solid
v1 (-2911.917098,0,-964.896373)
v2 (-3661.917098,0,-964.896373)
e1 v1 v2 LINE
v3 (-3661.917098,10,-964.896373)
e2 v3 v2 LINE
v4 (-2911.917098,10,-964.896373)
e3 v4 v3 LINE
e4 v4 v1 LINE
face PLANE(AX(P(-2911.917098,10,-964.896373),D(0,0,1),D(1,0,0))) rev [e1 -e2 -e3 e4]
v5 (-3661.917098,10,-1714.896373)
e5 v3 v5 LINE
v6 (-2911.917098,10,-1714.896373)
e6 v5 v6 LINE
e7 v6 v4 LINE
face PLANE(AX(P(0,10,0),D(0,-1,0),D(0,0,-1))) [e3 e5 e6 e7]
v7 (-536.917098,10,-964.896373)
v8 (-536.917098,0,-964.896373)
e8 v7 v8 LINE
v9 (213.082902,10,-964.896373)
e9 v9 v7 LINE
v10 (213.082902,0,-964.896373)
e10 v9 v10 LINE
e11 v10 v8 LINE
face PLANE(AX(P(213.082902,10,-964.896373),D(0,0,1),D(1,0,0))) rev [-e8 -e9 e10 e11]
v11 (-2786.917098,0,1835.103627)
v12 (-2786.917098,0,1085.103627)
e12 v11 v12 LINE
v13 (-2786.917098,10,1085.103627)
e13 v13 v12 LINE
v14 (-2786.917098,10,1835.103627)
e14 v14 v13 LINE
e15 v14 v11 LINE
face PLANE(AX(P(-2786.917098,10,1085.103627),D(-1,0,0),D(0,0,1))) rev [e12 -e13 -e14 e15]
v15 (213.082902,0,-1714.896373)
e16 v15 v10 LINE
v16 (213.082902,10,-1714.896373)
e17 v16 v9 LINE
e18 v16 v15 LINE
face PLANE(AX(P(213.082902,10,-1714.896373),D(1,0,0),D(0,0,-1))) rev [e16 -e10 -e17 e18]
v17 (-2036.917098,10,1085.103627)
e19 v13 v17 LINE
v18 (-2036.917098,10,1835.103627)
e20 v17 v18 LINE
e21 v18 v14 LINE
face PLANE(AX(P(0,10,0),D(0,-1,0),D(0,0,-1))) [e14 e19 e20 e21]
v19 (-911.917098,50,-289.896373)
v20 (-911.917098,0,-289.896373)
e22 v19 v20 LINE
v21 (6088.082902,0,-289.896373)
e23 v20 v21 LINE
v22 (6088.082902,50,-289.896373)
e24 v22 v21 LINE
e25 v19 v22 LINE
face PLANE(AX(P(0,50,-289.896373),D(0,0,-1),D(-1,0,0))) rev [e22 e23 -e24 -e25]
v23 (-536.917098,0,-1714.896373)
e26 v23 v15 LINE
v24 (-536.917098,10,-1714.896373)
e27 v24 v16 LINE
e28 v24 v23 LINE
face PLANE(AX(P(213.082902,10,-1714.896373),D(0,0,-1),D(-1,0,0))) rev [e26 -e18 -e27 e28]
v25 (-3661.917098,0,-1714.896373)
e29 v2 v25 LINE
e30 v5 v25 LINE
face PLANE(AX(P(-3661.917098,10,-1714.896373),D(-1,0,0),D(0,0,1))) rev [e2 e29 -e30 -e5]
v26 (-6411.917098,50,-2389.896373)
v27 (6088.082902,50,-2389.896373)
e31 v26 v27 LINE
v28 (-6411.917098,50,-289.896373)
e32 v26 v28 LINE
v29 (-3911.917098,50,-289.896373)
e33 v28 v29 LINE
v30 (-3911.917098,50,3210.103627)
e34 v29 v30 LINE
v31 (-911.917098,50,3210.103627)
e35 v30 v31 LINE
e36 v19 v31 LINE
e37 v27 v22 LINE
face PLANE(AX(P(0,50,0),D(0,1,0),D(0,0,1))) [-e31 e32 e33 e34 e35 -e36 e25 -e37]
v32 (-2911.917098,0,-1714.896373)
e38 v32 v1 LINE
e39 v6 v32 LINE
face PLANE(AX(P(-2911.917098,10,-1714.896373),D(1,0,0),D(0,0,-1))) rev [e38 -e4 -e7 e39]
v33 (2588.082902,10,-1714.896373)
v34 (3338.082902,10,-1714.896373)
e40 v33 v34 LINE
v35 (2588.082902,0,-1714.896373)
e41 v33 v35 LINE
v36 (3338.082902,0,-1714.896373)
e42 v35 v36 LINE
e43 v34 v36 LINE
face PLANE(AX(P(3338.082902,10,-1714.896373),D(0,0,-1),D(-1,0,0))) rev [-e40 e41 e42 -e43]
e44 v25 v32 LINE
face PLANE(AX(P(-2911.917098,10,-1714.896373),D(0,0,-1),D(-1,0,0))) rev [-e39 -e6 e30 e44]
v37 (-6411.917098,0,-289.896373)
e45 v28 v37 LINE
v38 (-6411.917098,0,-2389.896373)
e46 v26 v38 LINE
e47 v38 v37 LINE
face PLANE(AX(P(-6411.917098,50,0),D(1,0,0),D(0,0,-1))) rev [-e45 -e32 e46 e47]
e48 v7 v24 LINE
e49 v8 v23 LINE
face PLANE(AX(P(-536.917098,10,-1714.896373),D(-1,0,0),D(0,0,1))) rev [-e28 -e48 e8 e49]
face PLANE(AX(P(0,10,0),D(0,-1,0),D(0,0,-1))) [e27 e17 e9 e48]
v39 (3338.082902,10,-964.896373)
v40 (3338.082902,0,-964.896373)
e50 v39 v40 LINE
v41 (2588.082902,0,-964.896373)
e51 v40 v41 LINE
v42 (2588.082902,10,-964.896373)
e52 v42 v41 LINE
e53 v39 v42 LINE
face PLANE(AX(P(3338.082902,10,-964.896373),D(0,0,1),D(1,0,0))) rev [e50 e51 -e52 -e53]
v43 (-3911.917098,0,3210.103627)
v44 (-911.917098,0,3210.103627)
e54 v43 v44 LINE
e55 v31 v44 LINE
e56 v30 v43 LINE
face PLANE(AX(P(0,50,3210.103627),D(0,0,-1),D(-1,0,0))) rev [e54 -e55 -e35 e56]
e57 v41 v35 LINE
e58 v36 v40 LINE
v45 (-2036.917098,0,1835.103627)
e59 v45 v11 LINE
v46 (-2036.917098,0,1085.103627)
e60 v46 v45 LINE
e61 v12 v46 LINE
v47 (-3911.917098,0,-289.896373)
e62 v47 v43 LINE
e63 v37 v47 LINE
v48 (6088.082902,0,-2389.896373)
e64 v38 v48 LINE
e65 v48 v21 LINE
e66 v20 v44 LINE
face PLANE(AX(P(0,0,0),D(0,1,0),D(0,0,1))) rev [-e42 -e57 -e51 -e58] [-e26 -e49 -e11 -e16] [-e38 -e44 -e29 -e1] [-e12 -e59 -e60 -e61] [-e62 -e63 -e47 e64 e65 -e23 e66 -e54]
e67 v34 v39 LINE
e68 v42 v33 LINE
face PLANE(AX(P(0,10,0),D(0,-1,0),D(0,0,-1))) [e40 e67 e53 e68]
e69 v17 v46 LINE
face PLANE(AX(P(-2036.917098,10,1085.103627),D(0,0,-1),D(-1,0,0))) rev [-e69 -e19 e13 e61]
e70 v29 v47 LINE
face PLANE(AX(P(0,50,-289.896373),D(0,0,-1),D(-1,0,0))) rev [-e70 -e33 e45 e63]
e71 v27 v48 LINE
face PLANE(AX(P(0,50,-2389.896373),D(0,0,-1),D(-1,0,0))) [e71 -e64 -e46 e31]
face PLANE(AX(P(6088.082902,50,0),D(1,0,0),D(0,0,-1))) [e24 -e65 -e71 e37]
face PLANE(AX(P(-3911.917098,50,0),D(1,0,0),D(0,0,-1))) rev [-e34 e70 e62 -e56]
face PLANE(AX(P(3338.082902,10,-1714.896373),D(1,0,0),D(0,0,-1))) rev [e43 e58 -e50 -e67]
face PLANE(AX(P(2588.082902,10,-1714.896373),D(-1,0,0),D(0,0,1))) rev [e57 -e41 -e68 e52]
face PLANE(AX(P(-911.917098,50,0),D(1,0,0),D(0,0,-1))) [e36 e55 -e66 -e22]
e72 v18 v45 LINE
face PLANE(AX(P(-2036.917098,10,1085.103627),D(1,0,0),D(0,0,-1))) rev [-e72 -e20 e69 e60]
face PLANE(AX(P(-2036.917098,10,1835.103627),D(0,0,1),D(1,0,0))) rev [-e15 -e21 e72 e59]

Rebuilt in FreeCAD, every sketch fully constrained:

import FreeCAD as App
import Part
import Sketcher


def add_polygon(sketch, points):
    """Adds a closed chain of lines whose ends are joined by coincident constraints."""
    first, n = sketch.GeometryCount, len(points)
    for a, b in zip(points, points[1:] + points[:1]):
        sketch.addGeometry(Part.LineSegment(App.Vector(*a, 0), App.Vector(*b, 0)), False)
    for i in range(n):
        sketch.addConstraint(Sketcher.Constraint("Coincident", first + i, 2, first + (i + 1) % n, 1))

doc = App.newDocument("Part")
body = doc.addObject("PartDesign::Body", "Body")

sketch1 = body.newObject("Sketcher::SketchObject", "Sketch")
sketch1.AttachmentSupport = (doc.getObject("XZ_Plane"), [""])
sketch1.MapMode = "FlatFace"
add_polygon(sketch1, [(-6412, -2390), (-6412, -290), (-3912, -290), (-3912, 3210), (-912, 3210), (-912, -290), (6088, -290), (6088, -2390)])
sketch1.addConstraint(Sketcher.Constraint("Vertical", 0))
sketch1.addConstraint(Sketcher.Constraint("Horizontal", 1))
sketch1.addConstraint(Sketcher.Constraint("Vertical", 2))
sketch1.addConstraint(Sketcher.Constraint("Horizontal", 3))
sketch1.addConstraint(Sketcher.Constraint("Vertical", 4))
sketch1.addConstraint(Sketcher.Constraint("Horizontal", 5))
sketch1.addConstraint(Sketcher.Constraint("Vertical", 6))
sketch1.addConstraint(Sketcher.Constraint("Horizontal", 7))
sketch1.addConstraint(Sketcher.Constraint("Horizontal", 1, 2, 4, 2))
sketch1.addConstraint(Sketcher.Constraint("DistanceX", 1, 1, 1, 2, 2500.0))
sketch1.addConstraint(Sketcher.Constraint("DistanceX", 3, 1, 3, 2, 3000.0))
sketch1.addConstraint(Sketcher.Constraint("DistanceX", 5, 1, 5, 2, 7000.0))
sketch1.addConstraint(Sketcher.Constraint("DistanceY", 0, 1, 0, 2, 2100.0))
sketch1.addConstraint(Sketcher.Constraint("DistanceY", 2, 1, 2, 2, 3500.0))
sketch1.addConstraint(Sketcher.Constraint("DistanceX", 0, 2, -1, 1, 6411.917098))
sketch1.addConstraint(Sketcher.Constraint("DistanceY", 0, 2, -1, 1, 289.896373))
pad1 = body.newObject("PartDesign::Pad", "Pad")
pad1.Profile = sketch1
pad1.Length = 50
pad1.Reversed = True

sketch2 = body.newObject("Sketcher::SketchObject", "Sketch001")
sketch2.AttachmentSupport = (doc.getObject("XZ_Plane"), [""])
sketch2.MapMode = "FlatFace"
add_polygon(sketch2, [(-2787, 1835), (-2787, 1085), (-2037, 1085), (-2037, 1835)])
add_polygon(sketch2, [(-3662, -965), (-3662, -1715), (-2912, -1715), (-2912, -965)])
add_polygon(sketch2, [(-537, -965), (-537, -1715), (213, -1715), (213, -965)])
add_polygon(sketch2, [(2588, -965), (2588, -1715), (3338, -1715), (3338, -965)])
sketch2.addConstraint(Sketcher.Constraint("Vertical", 0))
sketch2.addConstraint(Sketcher.Constraint("Horizontal", 1))
sketch2.addConstraint(Sketcher.Constraint("Vertical", 2))
sketch2.addConstraint(Sketcher.Constraint("Horizontal", 3))
sketch2.addConstraint(Sketcher.Constraint("Vertical", 4))
sketch2.addConstraint(Sketcher.Constraint("Horizontal", 5))
sketch2.addConstraint(Sketcher.Constraint("Vertical", 6))
sketch2.addConstraint(Sketcher.Constraint("Horizontal", 7))
sketch2.addConstraint(Sketcher.Constraint("Vertical", 8))
sketch2.addConstraint(Sketcher.Constraint("Horizontal", 9))
sketch2.addConstraint(Sketcher.Constraint("Vertical", 10))
sketch2.addConstraint(Sketcher.Constraint("Horizontal", 11))
sketch2.addConstraint(Sketcher.Constraint("Vertical", 12))
sketch2.addConstraint(Sketcher.Constraint("Horizontal", 13))
sketch2.addConstraint(Sketcher.Constraint("Vertical", 14))
sketch2.addConstraint(Sketcher.Constraint("Horizontal", 15))
sketch2.addConstraint(Sketcher.Constraint("Horizontal", 5, 2, 8, 2))
sketch2.addConstraint(Sketcher.Constraint("Horizontal", 7, 2, 10, 2))
sketch2.addConstraint(Sketcher.Constraint("Horizontal", 9, 2, 12, 2))
sketch2.addConstraint(Sketcher.Constraint("Horizontal", 11, 2, 14, 2))
sketch2.addConstraint(Sketcher.Constraint("Equal", 3, 5))
sketch2.addConstraint(Sketcher.Constraint("Equal", 7, 9))
sketch2.addConstraint(Sketcher.Constraint("Equal", 11, 13))
sketch2.addConstraint(Sketcher.Constraint("Equal", 15, 0))
sketch2.addConstraint(Sketcher.Constraint("Equal", 2, 4))
sketch2.addConstraint(Sketcher.Constraint("DistanceX", 1, 1, 1, 2, 750.0))
sketch2.addConstraint(Sketcher.Constraint("DistanceX", 4, 2, 0, 2, 875.0))
sketch2.addConstraint(Sketcher.Constraint("DistanceY", 4, 2, 0, 2, 2800.0))
sketch2.addConstraint(Sketcher.Constraint("DistanceX", 5, 2, 8, 2, 2375.0))
sketch2.addConstraint(Sketcher.Constraint("DistanceX", 9, 2, 12, 2, 2375.0))
sketch2.addConstraint(Sketcher.Constraint("DistanceX", 0, 2, -1, 1, 2786.917098))
sketch2.addConstraint(Sketcher.Constraint("DistanceY", -1, 1, 0, 2, 1085.103627))
pocket1 = body.newObject("PartDesign::Pocket", "Pocket")
pocket1.Profile = sketch2
pocket1.Length = 10

doc.recompute()
